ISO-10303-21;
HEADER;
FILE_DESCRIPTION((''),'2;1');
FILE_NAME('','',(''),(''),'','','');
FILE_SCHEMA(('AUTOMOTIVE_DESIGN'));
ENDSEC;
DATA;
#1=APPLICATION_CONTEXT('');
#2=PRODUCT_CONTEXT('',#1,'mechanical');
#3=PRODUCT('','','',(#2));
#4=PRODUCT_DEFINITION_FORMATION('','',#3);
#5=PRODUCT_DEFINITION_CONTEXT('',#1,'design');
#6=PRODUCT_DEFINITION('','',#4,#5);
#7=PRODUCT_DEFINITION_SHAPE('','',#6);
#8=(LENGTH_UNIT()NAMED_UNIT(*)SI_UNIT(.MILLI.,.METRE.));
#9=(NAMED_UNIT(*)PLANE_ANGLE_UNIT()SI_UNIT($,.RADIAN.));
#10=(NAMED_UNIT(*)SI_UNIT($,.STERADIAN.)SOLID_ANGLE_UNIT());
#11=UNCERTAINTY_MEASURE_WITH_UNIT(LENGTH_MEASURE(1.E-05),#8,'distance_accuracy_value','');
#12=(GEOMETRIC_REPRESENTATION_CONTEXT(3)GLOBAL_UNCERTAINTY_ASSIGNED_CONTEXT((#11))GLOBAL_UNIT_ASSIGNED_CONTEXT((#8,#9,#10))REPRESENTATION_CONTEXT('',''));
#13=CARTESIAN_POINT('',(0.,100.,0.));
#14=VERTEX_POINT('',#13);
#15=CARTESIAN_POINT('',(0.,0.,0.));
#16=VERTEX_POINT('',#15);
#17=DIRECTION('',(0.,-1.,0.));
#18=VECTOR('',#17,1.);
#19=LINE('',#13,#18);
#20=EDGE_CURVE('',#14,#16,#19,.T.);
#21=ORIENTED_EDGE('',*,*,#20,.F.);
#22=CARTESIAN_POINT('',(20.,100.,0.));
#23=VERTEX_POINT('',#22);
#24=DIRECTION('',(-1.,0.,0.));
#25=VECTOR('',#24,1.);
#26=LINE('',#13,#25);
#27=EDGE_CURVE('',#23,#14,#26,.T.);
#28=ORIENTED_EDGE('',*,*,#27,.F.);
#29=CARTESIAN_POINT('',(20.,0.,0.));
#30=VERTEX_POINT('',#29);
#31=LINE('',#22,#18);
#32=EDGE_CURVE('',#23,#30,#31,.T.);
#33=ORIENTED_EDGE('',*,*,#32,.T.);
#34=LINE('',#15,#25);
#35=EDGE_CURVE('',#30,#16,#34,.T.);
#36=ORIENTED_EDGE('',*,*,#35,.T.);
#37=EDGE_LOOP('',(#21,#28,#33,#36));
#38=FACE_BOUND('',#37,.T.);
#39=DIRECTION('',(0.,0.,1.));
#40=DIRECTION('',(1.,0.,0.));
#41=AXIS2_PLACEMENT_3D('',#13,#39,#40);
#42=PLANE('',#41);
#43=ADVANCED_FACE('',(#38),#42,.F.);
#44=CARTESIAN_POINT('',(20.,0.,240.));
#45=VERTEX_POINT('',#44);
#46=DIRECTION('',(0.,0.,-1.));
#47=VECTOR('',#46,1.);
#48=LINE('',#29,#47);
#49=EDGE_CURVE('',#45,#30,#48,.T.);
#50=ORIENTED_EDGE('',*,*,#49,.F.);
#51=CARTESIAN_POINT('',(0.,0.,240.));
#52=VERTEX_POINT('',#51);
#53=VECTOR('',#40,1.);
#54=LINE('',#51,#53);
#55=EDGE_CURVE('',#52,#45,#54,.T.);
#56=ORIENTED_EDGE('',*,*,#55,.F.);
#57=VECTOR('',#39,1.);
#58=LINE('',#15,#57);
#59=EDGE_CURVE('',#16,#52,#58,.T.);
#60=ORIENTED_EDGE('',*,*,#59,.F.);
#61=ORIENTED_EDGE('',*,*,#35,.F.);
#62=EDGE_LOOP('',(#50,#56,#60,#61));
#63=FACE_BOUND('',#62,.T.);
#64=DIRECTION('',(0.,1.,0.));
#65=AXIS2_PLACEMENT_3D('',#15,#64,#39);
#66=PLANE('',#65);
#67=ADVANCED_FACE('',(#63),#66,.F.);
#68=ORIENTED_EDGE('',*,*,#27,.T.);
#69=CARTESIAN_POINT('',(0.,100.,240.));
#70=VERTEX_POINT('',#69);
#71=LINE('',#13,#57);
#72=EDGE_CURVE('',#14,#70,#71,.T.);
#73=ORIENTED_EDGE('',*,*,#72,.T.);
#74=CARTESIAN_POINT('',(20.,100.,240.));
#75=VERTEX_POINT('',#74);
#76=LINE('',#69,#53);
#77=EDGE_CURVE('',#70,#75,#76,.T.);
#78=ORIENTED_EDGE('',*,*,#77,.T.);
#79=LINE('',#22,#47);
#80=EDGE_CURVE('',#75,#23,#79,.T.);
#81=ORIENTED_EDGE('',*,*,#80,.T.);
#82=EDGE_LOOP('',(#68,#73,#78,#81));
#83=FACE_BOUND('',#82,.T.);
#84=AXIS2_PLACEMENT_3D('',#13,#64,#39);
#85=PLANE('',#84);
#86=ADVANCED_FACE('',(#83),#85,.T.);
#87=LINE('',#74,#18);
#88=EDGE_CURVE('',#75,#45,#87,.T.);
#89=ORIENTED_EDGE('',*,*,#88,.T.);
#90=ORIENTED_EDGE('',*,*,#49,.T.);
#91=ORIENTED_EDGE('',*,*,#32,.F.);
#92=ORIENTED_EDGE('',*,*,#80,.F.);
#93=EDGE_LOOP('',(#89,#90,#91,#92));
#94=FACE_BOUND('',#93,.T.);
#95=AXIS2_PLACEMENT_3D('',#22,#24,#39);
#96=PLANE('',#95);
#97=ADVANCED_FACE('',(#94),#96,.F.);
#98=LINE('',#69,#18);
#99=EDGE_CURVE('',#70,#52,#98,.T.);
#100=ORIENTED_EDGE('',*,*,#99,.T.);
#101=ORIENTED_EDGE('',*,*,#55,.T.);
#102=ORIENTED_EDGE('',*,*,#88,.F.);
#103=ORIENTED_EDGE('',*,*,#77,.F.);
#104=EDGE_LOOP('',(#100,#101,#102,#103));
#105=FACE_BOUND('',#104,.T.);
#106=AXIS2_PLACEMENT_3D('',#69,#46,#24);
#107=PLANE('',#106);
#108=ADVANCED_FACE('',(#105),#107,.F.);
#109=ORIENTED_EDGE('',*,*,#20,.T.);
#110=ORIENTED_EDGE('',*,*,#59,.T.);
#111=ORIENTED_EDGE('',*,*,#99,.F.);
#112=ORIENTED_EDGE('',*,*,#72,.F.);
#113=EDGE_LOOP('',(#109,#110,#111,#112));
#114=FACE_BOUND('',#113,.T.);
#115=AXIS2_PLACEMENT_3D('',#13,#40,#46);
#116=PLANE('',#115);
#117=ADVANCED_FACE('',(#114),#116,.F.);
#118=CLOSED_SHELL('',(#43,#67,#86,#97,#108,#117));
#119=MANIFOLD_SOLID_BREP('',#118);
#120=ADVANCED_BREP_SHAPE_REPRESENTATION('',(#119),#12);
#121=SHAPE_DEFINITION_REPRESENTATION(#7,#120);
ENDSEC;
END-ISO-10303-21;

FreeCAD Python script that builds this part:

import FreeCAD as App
import Part
import Sketcher


def add_polygon(sketch, points):
    """Adds a closed chain of lines whose ends are joined by coincident constraints."""
    first, n = sketch.GeometryCount, len(points)
    for a, b in zip(points, points[1:] + points[:1]):
        sketch.addGeometry(Part.LineSegment(App.Vector(*a, 0), App.Vector(*b, 0)), False)
    for i in range(n):
        sketch.addConstraint(Sketcher.Constraint("Coincident", first + i, 2, first + (i + 1) % n, 1))

doc = App.newDocument("Part")
body = doc.addObject("PartDesign::Body", "Body")

# Sketch on XZ plane
sketch1 = body.newObject("Sketcher::SketchObject", "Sketch")
sketch1.AttachmentSupport = (doc.getObject("XZ_Plane"), [""])
sketch1.MapMode = "FlatFace"
add_polygon(sketch1, [(0, 0), (0, 240), (20, 240), (20, 0)])  # lines 0-3
sketch1.addConstraint(Sketcher.Constraint("Vertical", 0))
sketch1.addConstraint(Sketcher.Constraint("Horizontal", 1))
sketch1.addConstraint(Sketcher.Constraint("Vertical", 2))
sketch1.addConstraint(Sketcher.Constraint("Horizontal", 3))
sketch1.addConstraint(Sketcher.Constraint("Coincident", 3, 2, -1, 1))
sketch1.addConstraint(Sketcher.Constraint("DistanceX", 1, 1, 1, 2, 20.0))
sketch1.addConstraint(Sketcher.Constraint("DistanceY", 0, 1, 0, 2, 240.0))
pad1 = body.newObject("PartDesign::Pad", "Pad")
pad1.Profile = sketch1
pad1.Length = 100
pad1.Reversed = True

doc.recompute()
